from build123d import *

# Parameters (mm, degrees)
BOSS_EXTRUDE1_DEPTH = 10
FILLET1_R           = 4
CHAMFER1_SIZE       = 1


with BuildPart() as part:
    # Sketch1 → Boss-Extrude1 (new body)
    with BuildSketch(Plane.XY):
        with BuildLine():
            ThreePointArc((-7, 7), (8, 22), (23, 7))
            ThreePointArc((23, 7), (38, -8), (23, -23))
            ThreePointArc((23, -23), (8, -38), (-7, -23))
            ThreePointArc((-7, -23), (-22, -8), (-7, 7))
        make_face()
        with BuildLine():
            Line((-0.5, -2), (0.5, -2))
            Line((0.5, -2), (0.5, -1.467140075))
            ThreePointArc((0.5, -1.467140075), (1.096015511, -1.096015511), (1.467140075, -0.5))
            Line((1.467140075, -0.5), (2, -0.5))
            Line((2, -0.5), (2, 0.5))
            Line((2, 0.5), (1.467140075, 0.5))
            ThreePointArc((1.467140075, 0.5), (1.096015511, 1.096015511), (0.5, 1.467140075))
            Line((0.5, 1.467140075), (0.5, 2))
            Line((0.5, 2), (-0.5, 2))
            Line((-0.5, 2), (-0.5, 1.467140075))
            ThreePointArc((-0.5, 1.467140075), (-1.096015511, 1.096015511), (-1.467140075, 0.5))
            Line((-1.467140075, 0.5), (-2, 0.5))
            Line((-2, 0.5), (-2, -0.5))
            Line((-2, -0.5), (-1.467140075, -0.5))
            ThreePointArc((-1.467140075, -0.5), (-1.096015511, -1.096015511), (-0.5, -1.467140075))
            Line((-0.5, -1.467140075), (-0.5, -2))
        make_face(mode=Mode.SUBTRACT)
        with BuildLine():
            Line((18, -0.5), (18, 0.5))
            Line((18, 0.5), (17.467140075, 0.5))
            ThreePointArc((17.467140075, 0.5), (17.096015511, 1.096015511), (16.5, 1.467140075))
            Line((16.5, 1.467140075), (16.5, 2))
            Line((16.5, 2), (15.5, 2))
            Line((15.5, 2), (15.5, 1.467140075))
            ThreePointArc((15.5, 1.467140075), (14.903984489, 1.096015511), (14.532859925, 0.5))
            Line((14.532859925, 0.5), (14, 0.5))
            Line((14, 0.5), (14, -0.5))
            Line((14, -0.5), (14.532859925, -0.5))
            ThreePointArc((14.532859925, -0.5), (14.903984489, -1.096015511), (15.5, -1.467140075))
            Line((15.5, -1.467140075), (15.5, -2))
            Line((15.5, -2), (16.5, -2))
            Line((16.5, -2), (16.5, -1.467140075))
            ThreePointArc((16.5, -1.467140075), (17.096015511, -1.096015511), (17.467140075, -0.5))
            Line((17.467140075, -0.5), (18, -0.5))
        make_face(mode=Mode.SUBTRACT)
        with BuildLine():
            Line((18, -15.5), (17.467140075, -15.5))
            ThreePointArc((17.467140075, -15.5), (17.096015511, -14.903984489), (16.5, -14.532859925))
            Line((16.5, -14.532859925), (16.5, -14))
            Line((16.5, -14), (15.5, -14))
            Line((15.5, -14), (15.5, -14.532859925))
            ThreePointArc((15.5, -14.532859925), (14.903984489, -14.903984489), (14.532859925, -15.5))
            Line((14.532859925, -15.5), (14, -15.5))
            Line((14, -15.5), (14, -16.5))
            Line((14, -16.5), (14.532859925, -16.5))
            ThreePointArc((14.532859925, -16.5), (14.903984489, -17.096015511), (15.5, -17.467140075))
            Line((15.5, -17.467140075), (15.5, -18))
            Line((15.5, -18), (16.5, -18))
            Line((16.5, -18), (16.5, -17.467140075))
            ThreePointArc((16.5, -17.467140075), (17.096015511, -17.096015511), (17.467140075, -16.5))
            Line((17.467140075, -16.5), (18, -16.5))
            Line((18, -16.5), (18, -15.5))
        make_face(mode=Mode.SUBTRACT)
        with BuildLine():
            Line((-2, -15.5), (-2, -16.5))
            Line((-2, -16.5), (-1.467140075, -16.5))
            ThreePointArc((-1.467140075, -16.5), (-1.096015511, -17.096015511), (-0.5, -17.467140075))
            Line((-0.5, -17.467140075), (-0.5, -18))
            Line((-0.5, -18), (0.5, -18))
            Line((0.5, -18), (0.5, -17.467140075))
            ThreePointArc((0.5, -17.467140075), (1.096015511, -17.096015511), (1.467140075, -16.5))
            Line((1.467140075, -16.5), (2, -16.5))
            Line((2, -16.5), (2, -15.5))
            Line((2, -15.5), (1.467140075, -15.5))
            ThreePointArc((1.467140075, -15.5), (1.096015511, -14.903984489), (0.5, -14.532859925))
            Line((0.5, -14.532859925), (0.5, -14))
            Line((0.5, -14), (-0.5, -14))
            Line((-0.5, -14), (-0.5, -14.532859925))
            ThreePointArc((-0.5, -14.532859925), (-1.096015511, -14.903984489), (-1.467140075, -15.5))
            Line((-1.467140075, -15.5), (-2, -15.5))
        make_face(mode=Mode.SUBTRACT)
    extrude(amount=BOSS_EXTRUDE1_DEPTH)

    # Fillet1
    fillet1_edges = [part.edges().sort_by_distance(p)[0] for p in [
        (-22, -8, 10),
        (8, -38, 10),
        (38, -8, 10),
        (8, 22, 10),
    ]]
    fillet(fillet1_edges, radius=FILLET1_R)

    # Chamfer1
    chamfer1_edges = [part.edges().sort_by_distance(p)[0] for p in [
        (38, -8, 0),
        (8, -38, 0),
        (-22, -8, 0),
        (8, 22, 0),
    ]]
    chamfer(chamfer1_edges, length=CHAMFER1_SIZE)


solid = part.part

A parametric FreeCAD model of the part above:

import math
import FreeCAD as App
import Part
import Sketcher

V = App.Vector
Q = App.Units.Quantity


def edges_at(feature, points):
    """Names of the edges that pass closest to the given points."""
    edges = feature.Shape.Edges
    near = lambda p: min(range(len(edges)), key=lambda i: edges[i].distToShape(Part.Vertex(*p))[0])
    return sorted({f"Edge{near(p) + 1}" for p in points})

doc = App.newDocument("Part")
params = doc.addObject("Spreadsheet::Sheet", "Params")
for row, (alias, value) in enumerate([
    ("sketch1_radius", "15 mm"),
    ("sketch1_width", "1 mm"),
    ("sketch1_radius2", "1.55 mm"),
    ("pad1_length", "10 mm"),
    ("fillet_radius", "4 mm"),
    ("chamfer_size", "1 mm"),
], start=1):
    params.set(f"A{row}", alias)
    params.set(f"B{row}", "=" + value)
    params.setAlias(f"B{row}", alias)

body = doc.addObject("PartDesign::Body", "Body")

# Sketch on XY plane
sketch1 = body.newObject("Sketcher::SketchObject", "Sketch")
sketch1.AttachmentSupport = (doc.getObject("XY_Plane"), [""])
sketch1.MapMode = "FlatFace"
sketch1.addGeometry([
    Part.ArcOfCircle(Part.Circle(V(8, 7, 0), V(0, 0, 1), 15), math.radians(0), math.radians(180)),  # 0
    Part.ArcOfCircle(Part.Circle(V(-7, -8, 0), V(0, 0, 1), 15), math.radians(90), math.radians(270)),  # 1
    Part.ArcOfCircle(Part.Circle(V(8, -23, 0), V(0, 0, 1), 15), math.radians(180), math.radians(360)),  # 2
    Part.ArcOfCircle(Part.Circle(V(23, -8, 0), V(0, 0, 1), 15), math.radians(-90), math.radians(90)),  # 3
    Part.LineSegment(V(18, -15.5, 0), V(18, -16.5, 0)),  # 4
    Part.LineSegment(V(18, -16.5, 0), V(17.5, -16.5, 0)),  # 5
    Part.ArcOfCircle(Part.Circle(V(16, -16, 0), V(0, 0, 1), 1.5), math.radians(-71), math.radians(-19)),  # 6
    Part.LineSegment(V(16.5, -17.5, 0), V(16.5, -18, 0)),  # 7
    Part.LineSegment(V(16.5, -18, 0), V(15.5, -18, 0)),  # 8
    Part.LineSegment(V(15.5, -18, 0), V(15.5, -17.5, 0)),  # 9
    Part.ArcOfCircle(Part.Circle(V(16, -16, 0), V(0, 0, 1), 1.5), math.radians(-161), math.radians(-109)),  # 10
    Part.LineSegment(V(14.5, -16.5, 0), V(14, -16.5, 0)),  # 11
    Part.LineSegment(V(14, -16.5, 0), V(14, -15.5, 0)),  # 12
    Part.LineSegment(V(14, -15.5, 0), V(14.5, -15.5, 0)),  # 13
    Part.ArcOfCircle(Part.Circle(V(16, -16, 0), V(0, 0, 1), 1.5), math.radians(109), math.radians(161)),  # 14
    Part.LineSegment(V(15.5, -14.5, 0), V(15.5, -14, 0)),  # 15
    Part.LineSegment(V(15.5, -14, 0), V(16.5, -14, 0)),  # 16
    Part.LineSegment(V(16.5, -14, 0), V(16.5, -14.5, 0)),  # 17
    Part.ArcOfCircle(Part.Circle(V(16, -16, 0), V(0, 0, 1), 1.5), math.radians(19), math.radians(71)),  # 18
    Part.LineSegment(V(17.5, -15.5, 0), V(18, -15.5, 0)),  # 19
    Part.LineSegment(V(-2, -15.5, 0), V(-1.5, -15.5, 0)),  # 20
    Part.ArcOfCircle(Part.Circle(V(0, -16, 0), V(0, 0, 1), 1.5), math.radians(109), math.radians(161)),  # 21
    Part.LineSegment(V(-0.5, -14.5, 0), V(-0.5, -14, 0)),  # 22
    Part.LineSegment(V(-0.5, -14, 0), V(0.5, -14, 0)),  # 23
    Part.LineSegment(V(0.5, -14, 0), V(0.5, -14.5, 0)),  # 24
    Part.ArcOfCircle(Part.Circle(V(0, -16, 0), V(0, 0, 1), 1.5), math.radians(19), math.radians(71)),  # 25
    Part.LineSegment(V(1.5, -15.5, 0), V(2, -15.5, 0)),  # 26
    Part.LineSegment(V(2, -15.5, 0), V(2, -16.5, 0)),  # 27
    Part.LineSegment(V(2, -16.5, 0), V(1.5, -16.5, 0)),  # 28
    Part.ArcOfCircle(Part.Circle(V(0, -16, 0), V(0, 0, 1), 1.5), math.radians(-71), math.radians(-19)),  # 29
    Part.LineSegment(V(0.5, -17.5, 0), V(0.5, -18, 0)),  # 30
    Part.LineSegment(V(0.5, -18, 0), V(-0.5, -18, 0)),  # 31
    Part.LineSegment(V(-0.5, -18, 0), V(-0.5, -17.5, 0)),  # 32
    Part.ArcOfCircle(Part.Circle(V(0, -16, 0), V(0, 0, 1), 1.5), math.radians(-161), math.radians(-109)),  # 33
    Part.LineSegment(V(-1.5, -16.5, 0), V(-2, -16.5, 0)),  # 34
    Part.LineSegment(V(-2, -16.5, 0), V(-2, -15.5, 0)),  # 35
    Part.LineSegment(V(18, -0.5, 0), V(17.5, -0.5, 0)),  # 36
    Part.ArcOfCircle(Part.Circle(V(16, 0, 0), V(0, 0, 1), 1.5), math.radians(-71), math.radians(-19)),  # 37
    Part.LineSegment(V(16.5, -1.5, 0), V(16.5, -2, 0)),  # 38
    Part.LineSegment(V(16.5, -2, 0), V(15.5, -2, 0)),  # 39
    Part.LineSegment(V(15.5, -2, 0), V(15.5, -1.5, 0)),  # 40
    Part.ArcOfCircle(Part.Circle(V(16, 0, 0), V(0, 0, 1), 1.5), math.radians(-161), math.radians(-109)),  # 41
    Part.LineSegment(V(14.5, -0.5, 0), V(14, -0.5, 0)),  # 42
    Part.LineSegment(V(14, -0.5, 0), V(14, 0.5, 0)),  # 43
    Part.LineSegment(V(14, 0.5, 0), V(14.5, 0.5, 0)),  # 44
    Part.ArcOfCircle(Part.Circle(V(16, 0, 0), V(0, 0, 1), 1.5), math.radians(109), math.radians(161)),  # 45
    Part.LineSegment(V(15.5, 1.5, 0), V(15.5, 2, 0)),  # 46
    Part.LineSegment(V(15.5, 2, 0), V(16.5, 2, 0)),  # 47
    Part.LineSegment(V(16.5, 2, 0), V(16.5, 1.5, 0)),  # 48
    Part.ArcOfCircle(Part.Circle(V(16, 0, 0), V(0, 0, 1), 1.5), math.radians(19), math.radians(71)),  # 49
    Part.LineSegment(V(17.5, 0.5, 0), V(18, 0.5, 0)),  # 50
    Part.LineSegment(V(18, 0.5, 0), V(18, -0.5, 0)),  # 51
    Part.LineSegment(V(-0.5, -2, 0), V(-0.5, -1.5, 0)),  # 52
    Part.ArcOfCircle(Part.Circle(V(0, 0, 0), V(0, 0, 1), 1.5), math.radians(-161), math.radians(-109)),  # 53
    Part.LineSegment(V(-1.5, -0.5, 0), V(-2, -0.5, 0)),  # 54
    Part.LineSegment(V(-2, -0.5, 0), V(-2, 0.5, 0)),  # 55
    Part.LineSegment(V(-2, 0.5, 0), V(-1.5, 0.5, 0)),  # 56
    Part.ArcOfCircle(Part.Circle(V(0, 0, 0), V(0, 0, 1), 1.5), math.radians(109), math.radians(161)),  # 57
    Part.LineSegment(V(-0.5, 1.5, 0), V(-0.5, 2, 0)),  # 58
    Part.LineSegment(V(-0.5, 2, 0), V(0.5, 2, 0)),  # 59
    Part.LineSegment(V(0.5, 2, 0), V(0.5, 1.5, 0)),  # 60
    Part.ArcOfCircle(Part.Circle(V(0, 0, 0), V(0, 0, 1), 1.5), math.radians(19), math.radians(71)),  # 61
    Part.LineSegment(V(1.5, 0.5, 0), V(2, 0.5, 0)),  # 62
    Part.LineSegment(V(2, 0.5, 0), V(2, -0.5, 0)),  # 63
    Part.LineSegment(V(2, -0.5, 0), V(1.5, -0.5, 0)),  # 64
    Part.ArcOfCircle(Part.Circle(V(0, 0, 0), V(0, 0, 1), 1.5), math.radians(-71), math.radians(-19)),  # 65
    Part.LineSegment(V(0.5, -1.5, 0), V(0.5, -2, 0)),  # 66
    Part.LineSegment(V(0.5, -2, 0), V(-0.5, -2, 0)),  # 67
], False)
sketch1.addConstraint([
    Sketcher.Constraint("Coincident", 0, 2, 1, 1),
    Sketcher.Constraint("Coincident", 1, 2, 2, 1),
    Sketcher.Constraint("Coincident", 2, 2, 3, 1),
    Sketcher.Constraint("Coincident", 3, 2, 0, 1),
    Sketcher.Constraint("Coincident", 4, 2, 5, 1),
    Sketcher.Constraint("Coincident", 5, 2, 6, 2),
    Sketcher.Constraint("Coincident", 6, 1, 7, 1),
    Sketcher.Constraint("Coincident", 7, 2, 8, 1),
    Sketcher.Constraint("Coincident", 8, 2, 9, 1),
    Sketcher.Constraint("Coincident", 9, 2, 10, 2),
    Sketcher.Constraint("Coincident", 10, 1, 11, 1),
    Sketcher.Constraint("Coincident", 11, 2, 12, 1),
    Sketcher.Constraint("Coincident", 12, 2, 13, 1),
    Sketcher.Constraint("Coincident", 13, 2, 14, 2),
    Sketcher.Constraint("Coincident", 14, 1, 15, 1),
    Sketcher.Constraint("Coincident", 15, 2, 16, 1),
    Sketcher.Constraint("Coincident", 16, 2, 17, 1),
    Sketcher.Constraint("Coincident", 17, 2, 18, 2),
    Sketcher.Constraint("Coincident", 18, 1, 19, 1),
    Sketcher.Constraint("Coincident", 19, 2, 4, 1),
    Sketcher.Constraint("Coincident", 20, 2, 21, 2),
    Sketcher.Constraint("Coincident", 21, 1, 22, 1),
    Sketcher.Constraint("Coincident", 22, 2, 23, 1),
    Sketcher.Constraint("Coincident", 23, 2, 24, 1),
    Sketcher.Constraint("Coincident", 24, 2, 25, 2),
    Sketcher.Constraint("Coincident", 25, 1, 26, 1),
    Sketcher.Constraint("Coincident", 26, 2, 27, 1),
    Sketcher.Constraint("Coincident", 27, 2, 28, 1),
    Sketcher.Constraint("Coincident", 28, 2, 29, 2),
    Sketcher.Constraint("Coincident", 29, 1, 30, 1),
    Sketcher.Constraint("Coincident", 30, 2, 31, 1),
    Sketcher.Constraint("Coincident", 31, 2, 32, 1),
    Sketcher.Constraint("Coincident", 32, 2, 33, 2),
    Sketcher.Constraint("Coincident", 33, 1, 34, 1),
    Sketcher.Constraint("Coincident", 34, 2, 35, 1),
    Sketcher.Constraint("Coincident", 35, 2, 20, 1),
    Sketcher.Constraint("Coincident", 36, 2, 37, 2),
    Sketcher.Constraint("Coincident", 37, 1, 38, 1),
    Sketcher.Constraint("Coincident", 38, 2, 39, 1),
    Sketcher.Constraint("Coincident", 39, 2, 40, 1),
    Sketcher.Constraint("Coincident", 40, 2, 41, 2),
    Sketcher.Constraint("Coincident", 41, 1, 42, 1),
    Sketcher.Constraint("Coincident", 42, 2, 43, 1),
    Sketcher.Constraint("Coincident", 43, 2, 44, 1),
    Sketcher.Constraint("Coincident", 44, 2, 45, 2),
    Sketcher.Constraint("Coincident", 45, 1, 46, 1),
    Sketcher.Constraint("Coincident", 46, 2, 47, 1),
    Sketcher.Constraint("Coincident", 47, 2, 48, 1),
    Sketcher.Constraint("Coincident", 48, 2, 49, 2),
    Sketcher.Constraint("Coincident", 49, 1, 50, 1),
    Sketcher.Constraint("Coincident", 50, 2, 51, 1),
    Sketcher.Constraint("Coincident", 51, 2, 36, 1),
    Sketcher.Constraint("Coincident", 52, 2, 53, 2),
    Sketcher.Constraint("Coincident", 53, 1, 54, 1),
    Sketcher.Constraint("Coincident", 54, 2, 55, 1),
    Sketcher.Constraint("Coincident", 55, 2, 56, 1),
    Sketcher.Constraint("Coincident", 56, 2, 57, 2),
    Sketcher.Constraint("Coincident", 57, 1, 58, 1),
    Sketcher.Constraint("Coincident", 58, 2, 59, 1),
    Sketcher.Constraint("Coincident", 59, 2, 60, 1),
    Sketcher.Constraint("Coincident", 60, 2, 61, 2),
    Sketcher.Constraint("Coincident", 61, 1, 62, 1),
    Sketcher.Constraint("Coincident", 62, 2, 63, 1),
    Sketcher.Constraint("Coincident", 63, 2, 64, 1),
    Sketcher.Constraint("Coincident", 64, 2, 65, 2),
    Sketcher.Constraint("Coincident", 65, 1, 66, 1),
    Sketcher.Constraint("Coincident", 66, 2, 67, 1),
    Sketcher.Constraint("Coincident", 67, 2, 52, 1),
    Sketcher.Constraint("Vertical", 4),
    Sketcher.Constraint("Horizontal", 5),
    Sketcher.Constraint("Vertical", 7),
    Sketcher.Constraint("Horizontal", 8),
    Sketcher.Constraint("Vertical", 9),
    Sketcher.Constraint("Horizontal", 11),
    Sketcher.Constraint("Vertical", 12),
    Sketcher.Constraint("Horizontal", 13),
    Sketcher.Constraint("Vertical", 15),
    Sketcher.Constraint("Horizontal", 16),
    Sketcher.Constraint("Vertical", 17),
    Sketcher.Constraint("Horizontal", 19),
    Sketcher.Constraint("Horizontal", 20),
    Sketcher.Constraint("Vertical", 22),
    Sketcher.Constraint("Horizontal", 23),
    Sketcher.Constraint("Vertical", 24),
    Sketcher.Constraint("Horizontal", 26),
    Sketcher.Constraint("Vertical", 27),
    Sketcher.Constraint("Horizontal", 28),
    Sketcher.Constraint("Vertical", 30),
    Sketcher.Constraint("Horizontal", 31),
    Sketcher.Constraint("Vertical", 32),
    Sketcher.Constraint("Horizontal", 34),
    Sketcher.Constraint("Vertical", 35),
    Sketcher.Constraint("Horizontal", 36),
    Sketcher.Constraint("Vertical", 38),
    Sketcher.Constraint("Horizontal", 39),
    Sketcher.Constraint("Vertical", 40),
    Sketcher.Constraint("Horizontal", 42),
    Sketcher.Constraint("Vertical", 43),
    Sketcher.Constraint("Horizontal", 44),
    Sketcher.Constraint("Vertical", 46),
    Sketcher.Constraint("Horizontal", 47),
    Sketcher.Constraint("Vertical", 48),
    Sketcher.Constraint("Horizontal", 50),
    Sketcher.Constraint("Vertical", 51),
    Sketcher.Constraint("Vertical", 52),
    Sketcher.Constraint("Horizontal", 54),
    Sketcher.Constraint("Vertical", 55),
    Sketcher.Constraint("Horizontal", 56),
    Sketcher.Constraint("Vertical", 58),
    Sketcher.Constraint("Horizontal", 59),
    Sketcher.Constraint("Vertical", 60),
    Sketcher.Constraint("Horizontal", 62),
    Sketcher.Constraint("Vertical", 63),
    Sketcher.Constraint("Horizontal", 64),
    Sketcher.Constraint("Vertical", 66),
    Sketcher.Constraint("Horizontal", 67),
    Sketcher.Constraint("Coincident", 53, 3, -1, 1),
    Sketcher.Constraint("Coincident", 57, 3, -1, 1),
    Sketcher.Constraint("Coincident", 61, 3, -1, 1),
    Sketcher.Constraint("Coincident", 65, 3, -1, 1),
    Sketcher.Constraint("Coincident", 10, 3, 6, 3),
    Sketcher.Constraint("Coincident", 14, 3, 6, 3),
    Sketcher.Constraint("Coincident", 18, 3, 6, 3),
    Sketcher.Constraint("Coincident", 25, 3, 21, 3),
    Sketcher.Constraint("Coincident", 29, 3, 21, 3),
    Sketcher.Constraint("Coincident", 33, 3, 21, 3),
    Sketcher.Constraint("Coincident", 41, 3, 37, 3),
    Sketcher.Constraint("Coincident", 45, 3, 37, 3),
    Sketcher.Constraint("Coincident", 49, 3, 37, 3),
    Sketcher.Constraint("Equal", 0, 1),
    Sketcher.Constraint("Equal", 1, 2),
    Sketcher.Constraint("Equal", 2, 3),
    Sketcher.Constraint("Equal", 6, 10),
    Sketcher.Constraint("Equal", 10, 14),
    Sketcher.Constraint("Equal", 14, 18),
    Sketcher.Constraint("Equal", 18, 21),
    Sketcher.Constraint("Equal", 21, 25),
    Sketcher.Constraint("Equal", 25, 29),
    Sketcher.Constraint("Equal", 29, 33),
    Sketcher.Constraint("Equal", 33, 37),
    Sketcher.Constraint("Equal", 37, 41),
    Sketcher.Constraint("Equal", 41, 45),
    Sketcher.Constraint("Equal", 45, 49),
    Sketcher.Constraint("Equal", 49, 53),
    Sketcher.Constraint("Equal", 53, 57),
    Sketcher.Constraint("Equal", 57, 61),
    Sketcher.Constraint("Equal", 61, 65),
    Sketcher.Constraint("Symmetric", 54, 2, 62, 2, -1, 1),
    Sketcher.Constraint("Symmetric", 58, 2, 66, 2, -1, 1),
    Sketcher.Constraint("Symmetric", 21, 1, 24, 2, -2),
    Sketcher.Constraint("Symmetric", 27, 2, 34, 2, -2),
    Sketcher.Constraint("Symmetric", 41, 1, 44, 2, -1),
    Sketcher.Constraint("Symmetric", 39, 2, 46, 2, -1),
    Sketcher.Constraint("Horizontal", 1, 3, 3, 3),
    Sketcher.Constraint("Horizontal", 18, 3, 21, 3),
    Sketcher.Constraint("Horizontal", 2, 3, 1, 2),
    Sketcher.Constraint("Horizontal", 6, 1, 9, 2),
    Sketcher.Constraint("Horizontal", 5, 2, 10, 1),
    Sketcher.Constraint("Horizontal", 14, 1, 17, 2),
    Sketcher.Constraint("Horizontal", 13, 2, 18, 1),
    Sketcher.Constraint("Horizontal", 19, 2, 20, 2),
    Sketcher.Constraint("Horizontal", 17, 2, 21, 1),
    Sketcher.Constraint("Horizontal", 16, 2, 22, 2),
    Sketcher.Constraint("Horizontal", 20, 2, 25, 1),
    Sketcher.Constraint("Horizontal", 11, 2, 27, 2),
    Sketcher.Constraint("Horizontal", 9, 2, 29, 1),
    Sketcher.Constraint("Horizontal", 8, 2, 30, 2),
    Sketcher.Constraint("Horizontal", 29, 1, 32, 2),
    Sketcher.Constraint("Horizontal", 37, 1, 40, 2),
    Sketcher.Constraint("Horizontal", 36, 2, 41, 1),
    Sketcher.Constraint("Horizontal", 45, 1, 48, 2),
    Sketcher.Constraint("Horizontal", 44, 2, 49, 1),
    Sketcher.Constraint("Horizontal", 40, 2, 52, 2),
    Sketcher.Constraint("Horizontal", 51, 2, 53, 1),
    Sketcher.Constraint("Horizontal", 50, 2, 55, 2),
    Sketcher.Constraint("Horizontal", 48, 2, 57, 1),
    Sketcher.Constraint("Horizontal", 47, 2, 58, 2),
    Sketcher.Constraint("Horizontal", 57, 1, 60, 2),
    Sketcher.Constraint("Horizontal", 54, 2, 63, 2),
    Sketcher.Constraint("Vertical", 0, 3, 2, 3),
    Sketcher.Constraint("Vertical", 18, 3, 37, 3),
    Sketcher.Constraint("Vertical", 1, 3, 0, 2),
    Sketcher.Constraint("Vertical", 3, 3, 2, 2),
    Sketcher.Constraint("Vertical", 10, 1, 13, 2),
    Sketcher.Constraint("Vertical", 9, 2, 14, 1),
    Sketcher.Constraint("Vertical", 18, 1, 36, 2),
    Sketcher.Constraint("Vertical", 17, 2, 37, 1),
    Sketcher.Constraint("Vertical", 12, 2, 42, 2),
    Sketcher.Constraint("Vertical", 19, 2, 50, 2),
    Sketcher.Constraint("Vertical", 35, 2, 54, 2),
    Sketcher.Constraint("Equal", 5, 11),
    Sketcher.Constraint("Equal", 19, 20),
    Sketcher.Constraint("Equal", 67, 4),
    Sketcher.Constraint("Equal", 64, 7),
    Sketcher.Constraint("Equal", 9, 15),
    Sketcher.Constraint("Equal", 32, 38),
    Sketcher.Constraint("Radius", 0, Q("15 mm")),
    Sketcher.Constraint("DistanceX", 8, 2, 8, 1, Q("1 mm")),
    Sketcher.Constraint("Radius", 6, Q("1.55 mm")),
    Sketcher.Constraint("DistanceX", -1, 1, 0, 3, Q("8 mm")),
    Sketcher.Constraint("DistanceY", -1, 1, 0, 3, Q("7 mm")),
    Sketcher.Constraint("DistanceY", 1, 3, -1, 1, Q("8 mm")),
    Sketcher.Constraint("DistanceX", -1, 1, 6, 3, Q("16 mm")),
    Sketcher.Constraint("DistanceY", 6, 3, -1, 1, Q("16 mm")),
    Sketcher.Constraint("DistanceX", -1, 1, 4, 2, Q("18 mm")),
])
sketch1.setExpression("Constraints[196]", "Params.sketch1_radius")
sketch1.setExpression("Constraints[197]", "Params.sketch1_width")
sketch1.setExpression("Constraints[198]", "Params.sketch1_radius2")
pad1 = body.newObject("PartDesign::Pad", "Pad")
pad1.Profile = sketch1
pad1.setExpression("Length", "Params.pad1_length")
doc.recompute()

fillet = body.newObject("PartDesign::Fillet", "Fillet")
fillet.Base = (pad1, edges_at(pad1, [
    (-22, -8, 10),
    (8, -38, 10),
    (38, -8, 10),
    (8, 22, 10),
]))
fillet.setExpression("Radius", "Params.fillet_radius")
doc.recompute()

chamfer = body.newObject("PartDesign::Chamfer", "Chamfer")
chamfer.Base = (fillet, edges_at(fillet, [
    (38, -8, 0),
    (8, -38, 0),
    (-22, -8, 0),
    (8, 22, 0),
]))
chamfer.setExpression("Size", "Params.chamfer_size")

doc.recompute()
